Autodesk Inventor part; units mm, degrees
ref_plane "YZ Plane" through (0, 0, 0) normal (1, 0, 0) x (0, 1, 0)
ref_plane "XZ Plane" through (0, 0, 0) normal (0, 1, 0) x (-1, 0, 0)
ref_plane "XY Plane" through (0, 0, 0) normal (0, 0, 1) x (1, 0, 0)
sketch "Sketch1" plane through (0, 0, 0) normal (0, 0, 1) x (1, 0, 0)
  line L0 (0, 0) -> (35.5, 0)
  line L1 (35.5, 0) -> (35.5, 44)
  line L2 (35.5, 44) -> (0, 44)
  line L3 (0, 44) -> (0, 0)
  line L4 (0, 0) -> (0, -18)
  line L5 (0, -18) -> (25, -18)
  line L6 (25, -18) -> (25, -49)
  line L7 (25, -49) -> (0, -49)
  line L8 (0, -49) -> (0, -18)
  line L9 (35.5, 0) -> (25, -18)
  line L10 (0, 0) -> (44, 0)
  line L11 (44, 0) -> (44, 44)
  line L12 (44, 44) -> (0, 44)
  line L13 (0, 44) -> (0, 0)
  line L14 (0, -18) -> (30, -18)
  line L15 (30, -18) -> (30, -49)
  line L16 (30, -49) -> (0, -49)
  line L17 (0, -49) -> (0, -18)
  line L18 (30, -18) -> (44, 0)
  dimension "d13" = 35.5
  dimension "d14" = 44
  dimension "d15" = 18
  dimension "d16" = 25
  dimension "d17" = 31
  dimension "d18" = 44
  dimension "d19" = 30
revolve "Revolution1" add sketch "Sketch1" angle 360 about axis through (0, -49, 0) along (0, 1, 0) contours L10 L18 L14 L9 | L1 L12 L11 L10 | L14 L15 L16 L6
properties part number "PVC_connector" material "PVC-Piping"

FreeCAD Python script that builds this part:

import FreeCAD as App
import Part
import Sketcher
Q = App.Units.Quantity

doc = App.newDocument("Part")
body = doc.addObject("PartDesign::Body", "Body")

sketch1 = body.newObject("Sketcher::SketchObject", "Sketch")
sketch1.AttachmentSupport = (doc.getObject("XY_Plane"), [""])
sketch1.MapMode = "FlatFace"
sketch1.addGeometry([
    Part.LineSegment(App.Vector(30, -18, 0), App.Vector(44, 0, 0)),
    Part.LineSegment(App.Vector(44, 0, 0), App.Vector(44, 44, 0)),
    Part.LineSegment(App.Vector(44, 44, 0), App.Vector(36, 44, 0)),
    Part.LineSegment(App.Vector(36, 44, 0), App.Vector(36, 0, 0)),
    Part.LineSegment(App.Vector(36, 0, 0), App.Vector(25, -18, 0)),
    Part.LineSegment(App.Vector(25, -18, 0), App.Vector(25, -49, 0)),
    Part.LineSegment(App.Vector(25, -49, 0), App.Vector(30, -49, 0)),
    Part.LineSegment(App.Vector(30, -49, 0), App.Vector(30, -18, 0)),
], False)
sketch1.addConstraint([
    Sketcher.Constraint("Coincident", 0, 2, 1, 1),
    Sketcher.Constraint("Coincident", 1, 2, 2, 1),
    Sketcher.Constraint("Coincident", 2, 2, 3, 1),
    Sketcher.Constraint("Coincident", 3, 2, 4, 1),
    Sketcher.Constraint("Coincident", 4, 2, 5, 1),
    Sketcher.Constraint("Coincident", 5, 2, 6, 1),
    Sketcher.Constraint("Coincident", 6, 2, 7, 1),
    Sketcher.Constraint("Coincident", 7, 2, 0, 1),
    Sketcher.Constraint("Vertical", 1),
    Sketcher.Constraint("Horizontal", 2),
    Sketcher.Constraint("Vertical", 3),
    Sketcher.Constraint("Vertical", 5),
    Sketcher.Constraint("Horizontal", 6),
    Sketcher.Constraint("Vertical", 7),
    Sketcher.Constraint("PointOnObject", 0, 2, -1),
    Sketcher.Constraint("PointOnObject", 3, 2, -1),
    Sketcher.Constraint("Horizontal", 4, 2, 7, 2),
    Sketcher.Constraint("DistanceY", 1, 1, 1, 2, Q("44 mm")),
    Sketcher.Constraint("DistanceY", 5, 2, 5, 1, Q("31 mm")),
    Sketcher.Constraint("DistanceX", -1, 1, 0, 2, Q("44 mm")),
    Sketcher.Constraint("DistanceX", -1, 1, 4, 2, Q("25 mm")),
    Sketcher.Constraint("DistanceY", 4, 2, -1, 1, Q("18 mm")),
    Sketcher.Constraint("DistanceX", -1, 1, 6, 2, Q("30 mm")),
    Sketcher.Constraint("DistanceX", -1, 1, 2, 2, Q("35.5 mm")),
])
revolution = body.newObject("PartDesign::Revolution", "Revolution")
revolution.Profile = sketch1
revolution.ReferenceAxis = (sketch1, ["V_Axis"])
revolution.Angle = 360

doc.recompute()
